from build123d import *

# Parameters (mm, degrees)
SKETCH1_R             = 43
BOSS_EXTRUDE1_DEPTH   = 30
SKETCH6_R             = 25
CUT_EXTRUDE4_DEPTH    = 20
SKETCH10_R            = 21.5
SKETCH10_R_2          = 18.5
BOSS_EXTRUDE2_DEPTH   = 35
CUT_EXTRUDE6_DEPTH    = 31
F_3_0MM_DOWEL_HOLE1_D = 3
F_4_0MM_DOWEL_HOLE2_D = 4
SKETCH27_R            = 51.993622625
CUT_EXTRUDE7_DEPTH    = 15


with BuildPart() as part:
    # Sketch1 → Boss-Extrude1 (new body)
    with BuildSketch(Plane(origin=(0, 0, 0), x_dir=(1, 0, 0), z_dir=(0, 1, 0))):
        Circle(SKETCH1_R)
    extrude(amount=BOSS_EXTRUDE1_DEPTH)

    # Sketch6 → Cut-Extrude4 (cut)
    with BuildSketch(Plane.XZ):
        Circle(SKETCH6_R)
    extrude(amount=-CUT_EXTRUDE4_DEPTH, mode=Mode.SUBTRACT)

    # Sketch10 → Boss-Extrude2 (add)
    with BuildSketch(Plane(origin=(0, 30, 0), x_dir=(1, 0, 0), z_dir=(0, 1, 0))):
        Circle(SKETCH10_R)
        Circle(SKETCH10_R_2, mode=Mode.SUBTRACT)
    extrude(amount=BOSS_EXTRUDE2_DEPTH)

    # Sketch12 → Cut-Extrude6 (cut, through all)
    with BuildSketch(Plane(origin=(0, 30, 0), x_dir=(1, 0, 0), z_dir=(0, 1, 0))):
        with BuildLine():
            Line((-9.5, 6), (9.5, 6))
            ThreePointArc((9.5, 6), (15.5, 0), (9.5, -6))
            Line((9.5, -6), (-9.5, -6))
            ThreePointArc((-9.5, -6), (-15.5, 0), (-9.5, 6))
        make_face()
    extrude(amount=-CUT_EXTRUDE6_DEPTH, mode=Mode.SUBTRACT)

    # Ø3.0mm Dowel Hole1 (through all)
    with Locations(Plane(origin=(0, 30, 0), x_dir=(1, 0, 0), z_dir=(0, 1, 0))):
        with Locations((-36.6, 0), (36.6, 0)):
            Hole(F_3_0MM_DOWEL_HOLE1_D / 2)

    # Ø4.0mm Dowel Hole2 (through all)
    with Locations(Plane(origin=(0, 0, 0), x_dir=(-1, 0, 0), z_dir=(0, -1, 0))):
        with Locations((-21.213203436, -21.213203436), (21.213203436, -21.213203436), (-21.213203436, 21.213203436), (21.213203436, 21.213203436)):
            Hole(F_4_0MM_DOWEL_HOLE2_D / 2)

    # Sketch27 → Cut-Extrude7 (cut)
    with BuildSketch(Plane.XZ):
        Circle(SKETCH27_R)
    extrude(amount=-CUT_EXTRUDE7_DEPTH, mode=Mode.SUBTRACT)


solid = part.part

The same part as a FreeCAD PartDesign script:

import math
import FreeCAD as App
import Part
import Sketcher
from FreeCAD import Vector
Q = App.Units.Quantity

doc = App.newDocument("Part")
body = doc.addObject("PartDesign::Body", "Body")

# Sketch on XZ plane
sketch1 = body.newObject("Sketcher::SketchObject", "Sketch")
sketch1.AttachmentSupport = (doc.getObject("XZ_Plane"), [""])
sketch1.MapMode = "FlatFace"
sketch1.addGeometry(Part.Circle(Vector(0, 0, 0), Vector(0, 0, 1), 43), False)
sketch1.addConstraint([
    Sketcher.Constraint("Coincident", 0, 3, -1, 1),
    Sketcher.Constraint("Diameter", 0, Q("86 mm")),
])
pad1 = body.newObject("PartDesign::Pad", "Pad")
pad1.Profile = sketch1
pad1.Length = 30
pad1.Reversed = True

# Sketch on XZ plane
sketch2 = body.newObject("Sketcher::SketchObject", "Sketch001")
sketch2.AttachmentSupport = (doc.getObject("XZ_Plane"), [""])
sketch2.MapMode = "FlatFace"
sketch2.addGeometry(Part.Circle(Vector(0, 0, 0), Vector(0, 0, 1), 25), False)
sketch2.addConstraint([
    Sketcher.Constraint("Coincident", 0, 3, -1, 1),
    Sketcher.Constraint("Diameter", 0, Q("50 mm")),
])
pocket1 = body.newObject("PartDesign::Pocket", "Pocket")
pocket1.Profile = sketch2
pocket1.Length = 20

# Sketch on XZ plane
sketch3 = body.newObject("Sketcher::SketchObject", "Sketch002")
sketch3.AttachmentSupport = (doc.getObject("XZ_Plane"), [""])
sketch3.MapMode = "FlatFace"
sketch3.AttachmentOffset = App.Placement(Vector(0, 0, -30), App.Rotation())
sketch3.addGeometry([
    Part.Circle(Vector(0, 0, 0), Vector(0, 0, 1), 21.5),
    Part.Circle(Vector(0, 0, 0), Vector(0, 0, 1), 18.5),
], False)
sketch3.addConstraint([
    Sketcher.Constraint("Coincident", 0, 3, -1, 1),
    Sketcher.Constraint("Coincident", 1, 3, -1, 1),
    Sketcher.Constraint("Diameter", 0, Q("43 mm")),
    Sketcher.Constraint("Diameter", 1, Q("37 mm")),
])
pad2 = body.newObject("PartDesign::Pad", "Pad001")
pad2.Profile = sketch3
pad2.Length = 35
pad2.Reversed = True

# Sketch on XZ plane
sketch4 = body.newObject("Sketcher::SketchObject", "Sketch003")
sketch4.AttachmentSupport = (doc.getObject("XZ_Plane"), [""])
sketch4.MapMode = "FlatFace"
sketch4.AttachmentOffset = App.Placement(Vector(0, 0, -30), App.Rotation())
sketch4.addGeometry([
    Part.LineSegment(Vector(9.5, -6, 0), Vector(-9.5, -6, 0)),
    Part.ArcOfCircle(Part.Circle(Vector(-9.5, 0, 0), Vector(0, 0, 1), 6), math.radians(90), math.radians(270)),
    Part.LineSegment(Vector(-9.5, 6, 0), Vector(9.5, 6, 0)),
    Part.ArcOfCircle(Part.Circle(Vector(9.5, 0, 0), Vector(0, 0, 1), 6), math.radians(-90), math.radians(90)),
], False)
sketch4.addConstraint([
    Sketcher.Constraint("Tangent", 0, 2, 1, 2),
    Sketcher.Constraint("Tangent", 1, 1, 2, 1),
    Sketcher.Constraint("Tangent", 2, 2, 3, 2),
    Sketcher.Constraint("Tangent", 3, 1, 0, 1),
    Sketcher.Constraint("Horizontal", 0),
    Sketcher.Constraint("Horizontal", 2),
    Sketcher.Constraint("Symmetric", 1, 3, 3, 3, -1, 1),
    Sketcher.Constraint("Radius", 1, Q("6 mm")),
    Sketcher.Constraint("DistanceX", 0, 2, 0, 1, Q("19 mm")),
])
pocket2 = body.newObject("PartDesign::Pocket", "Pocket001")
pocket2.Profile = sketch4
pocket2.Type = "ThroughAll"
pocket2.Reversed = True

# Sketch on XZ plane
sketch5 = body.newObject("Sketcher::SketchObject", "Sketch004")
sketch5.AttachmentSupport = (doc.getObject("XZ_Plane"), [""])
sketch5.MapMode = "FlatFace"
sketch5.AttachmentOffset = App.Placement(Vector(0, 0, -30), App.Rotation())
sketch5.addGeometry([
    Part.Circle(Vector(-36.6, 0, 0), Vector(0, 0, 1), 1.5),
    Part.Circle(Vector(36.6, 0, 0), Vector(0, 0, 1), 1.5),
], False)
sketch5.addConstraint([
    Sketcher.Constraint("Equal", 0, 1),
    Sketcher.Constraint("Symmetric", 0, 3, 1, 3, -1, 1),
    Sketcher.Constraint("PointOnObject", 0, 3, -1),
    Sketcher.Constraint("Diameter", 0, Q("3 mm")),
    Sketcher.Constraint("DistanceX", 0, 3, -1, 1, Q("36.6 mm")),
])
doc.recompute()
hole = body.newObject("PartDesign::Hole", "Hole")
hole.Profile = sketch5
hole.ThreadType = "None"
hole.Diameter = 3
hole.DepthType = "ThroughAll"
hole.Reversed = True

# Sketch on XZ plane
sketch6 = body.newObject("Sketcher::SketchObject", "Sketch005")
sketch6.AttachmentSupport = (doc.getObject("XZ_Plane"), [""])
sketch6.MapMode = "FlatFace"
sketch6.addGeometry([
    Part.Circle(Vector(21.213203, 21.213203, 0), Vector(0, 0, 1), 2),
    Part.Circle(Vector(-21.213203, 21.213203, 0), Vector(0, 0, 1), 2),
    Part.Circle(Vector(21.213203, -21.213203, 0), Vector(0, 0, 1), 2),
    Part.Circle(Vector(-21.213203, -21.213203, 0), Vector(0, 0, 1), 2),
], False)
sketch6.addConstraint([
    Sketcher.Constraint("Equal", 0, 1),
    Sketcher.Constraint("Equal", 1, 2),
    Sketcher.Constraint("Equal", 2, 3),
    Sketcher.Constraint("Symmetric", 1, 3, 2, 3, -1, 1),
    Sketcher.Constraint("Symmetric", 0, 3, 3, 3, -1, 1),
    Sketcher.Constraint("Symmetric", 0, 3, 1, 3, -2),
    Sketcher.Constraint("Diameter", 0, Q("4 mm")),
    Sketcher.Constraint("DistanceX", -1, 1, 0, 3, Q("21.213203 mm")),
    Sketcher.Constraint("DistanceY", -1, 1, 0, 3, Q("21.213203 mm")),
])
doc.recompute()
hole2 = body.newObject("PartDesign::Hole", "Hole001")
hole2.Profile = sketch6
hole2.ThreadType = "None"
hole2.Diameter = 4
hole2.DepthType = "ThroughAll"

# Sketch on XZ plane
sketch7 = body.newObject("Sketcher::SketchObject", "Sketch006")
sketch7.AttachmentSupport = (doc.getObject("XZ_Plane"), [""])
sketch7.MapMode = "FlatFace"
sketch7.addGeometry(Part.Circle(Vector(0, 0, 0), Vector(0, 0, 1), 51.993623), False)
sketch7.addConstraint([
    Sketcher.Constraint("Coincident", 0, 3, -1, 1),
    Sketcher.Constraint("Diameter", 0, Q("103.987245 mm")),
])
pocket3 = body.newObject("PartDesign::Pocket", "Pocket002")
pocket3.Profile = sketch7
pocket3.Length = 15

doc.recompute()
